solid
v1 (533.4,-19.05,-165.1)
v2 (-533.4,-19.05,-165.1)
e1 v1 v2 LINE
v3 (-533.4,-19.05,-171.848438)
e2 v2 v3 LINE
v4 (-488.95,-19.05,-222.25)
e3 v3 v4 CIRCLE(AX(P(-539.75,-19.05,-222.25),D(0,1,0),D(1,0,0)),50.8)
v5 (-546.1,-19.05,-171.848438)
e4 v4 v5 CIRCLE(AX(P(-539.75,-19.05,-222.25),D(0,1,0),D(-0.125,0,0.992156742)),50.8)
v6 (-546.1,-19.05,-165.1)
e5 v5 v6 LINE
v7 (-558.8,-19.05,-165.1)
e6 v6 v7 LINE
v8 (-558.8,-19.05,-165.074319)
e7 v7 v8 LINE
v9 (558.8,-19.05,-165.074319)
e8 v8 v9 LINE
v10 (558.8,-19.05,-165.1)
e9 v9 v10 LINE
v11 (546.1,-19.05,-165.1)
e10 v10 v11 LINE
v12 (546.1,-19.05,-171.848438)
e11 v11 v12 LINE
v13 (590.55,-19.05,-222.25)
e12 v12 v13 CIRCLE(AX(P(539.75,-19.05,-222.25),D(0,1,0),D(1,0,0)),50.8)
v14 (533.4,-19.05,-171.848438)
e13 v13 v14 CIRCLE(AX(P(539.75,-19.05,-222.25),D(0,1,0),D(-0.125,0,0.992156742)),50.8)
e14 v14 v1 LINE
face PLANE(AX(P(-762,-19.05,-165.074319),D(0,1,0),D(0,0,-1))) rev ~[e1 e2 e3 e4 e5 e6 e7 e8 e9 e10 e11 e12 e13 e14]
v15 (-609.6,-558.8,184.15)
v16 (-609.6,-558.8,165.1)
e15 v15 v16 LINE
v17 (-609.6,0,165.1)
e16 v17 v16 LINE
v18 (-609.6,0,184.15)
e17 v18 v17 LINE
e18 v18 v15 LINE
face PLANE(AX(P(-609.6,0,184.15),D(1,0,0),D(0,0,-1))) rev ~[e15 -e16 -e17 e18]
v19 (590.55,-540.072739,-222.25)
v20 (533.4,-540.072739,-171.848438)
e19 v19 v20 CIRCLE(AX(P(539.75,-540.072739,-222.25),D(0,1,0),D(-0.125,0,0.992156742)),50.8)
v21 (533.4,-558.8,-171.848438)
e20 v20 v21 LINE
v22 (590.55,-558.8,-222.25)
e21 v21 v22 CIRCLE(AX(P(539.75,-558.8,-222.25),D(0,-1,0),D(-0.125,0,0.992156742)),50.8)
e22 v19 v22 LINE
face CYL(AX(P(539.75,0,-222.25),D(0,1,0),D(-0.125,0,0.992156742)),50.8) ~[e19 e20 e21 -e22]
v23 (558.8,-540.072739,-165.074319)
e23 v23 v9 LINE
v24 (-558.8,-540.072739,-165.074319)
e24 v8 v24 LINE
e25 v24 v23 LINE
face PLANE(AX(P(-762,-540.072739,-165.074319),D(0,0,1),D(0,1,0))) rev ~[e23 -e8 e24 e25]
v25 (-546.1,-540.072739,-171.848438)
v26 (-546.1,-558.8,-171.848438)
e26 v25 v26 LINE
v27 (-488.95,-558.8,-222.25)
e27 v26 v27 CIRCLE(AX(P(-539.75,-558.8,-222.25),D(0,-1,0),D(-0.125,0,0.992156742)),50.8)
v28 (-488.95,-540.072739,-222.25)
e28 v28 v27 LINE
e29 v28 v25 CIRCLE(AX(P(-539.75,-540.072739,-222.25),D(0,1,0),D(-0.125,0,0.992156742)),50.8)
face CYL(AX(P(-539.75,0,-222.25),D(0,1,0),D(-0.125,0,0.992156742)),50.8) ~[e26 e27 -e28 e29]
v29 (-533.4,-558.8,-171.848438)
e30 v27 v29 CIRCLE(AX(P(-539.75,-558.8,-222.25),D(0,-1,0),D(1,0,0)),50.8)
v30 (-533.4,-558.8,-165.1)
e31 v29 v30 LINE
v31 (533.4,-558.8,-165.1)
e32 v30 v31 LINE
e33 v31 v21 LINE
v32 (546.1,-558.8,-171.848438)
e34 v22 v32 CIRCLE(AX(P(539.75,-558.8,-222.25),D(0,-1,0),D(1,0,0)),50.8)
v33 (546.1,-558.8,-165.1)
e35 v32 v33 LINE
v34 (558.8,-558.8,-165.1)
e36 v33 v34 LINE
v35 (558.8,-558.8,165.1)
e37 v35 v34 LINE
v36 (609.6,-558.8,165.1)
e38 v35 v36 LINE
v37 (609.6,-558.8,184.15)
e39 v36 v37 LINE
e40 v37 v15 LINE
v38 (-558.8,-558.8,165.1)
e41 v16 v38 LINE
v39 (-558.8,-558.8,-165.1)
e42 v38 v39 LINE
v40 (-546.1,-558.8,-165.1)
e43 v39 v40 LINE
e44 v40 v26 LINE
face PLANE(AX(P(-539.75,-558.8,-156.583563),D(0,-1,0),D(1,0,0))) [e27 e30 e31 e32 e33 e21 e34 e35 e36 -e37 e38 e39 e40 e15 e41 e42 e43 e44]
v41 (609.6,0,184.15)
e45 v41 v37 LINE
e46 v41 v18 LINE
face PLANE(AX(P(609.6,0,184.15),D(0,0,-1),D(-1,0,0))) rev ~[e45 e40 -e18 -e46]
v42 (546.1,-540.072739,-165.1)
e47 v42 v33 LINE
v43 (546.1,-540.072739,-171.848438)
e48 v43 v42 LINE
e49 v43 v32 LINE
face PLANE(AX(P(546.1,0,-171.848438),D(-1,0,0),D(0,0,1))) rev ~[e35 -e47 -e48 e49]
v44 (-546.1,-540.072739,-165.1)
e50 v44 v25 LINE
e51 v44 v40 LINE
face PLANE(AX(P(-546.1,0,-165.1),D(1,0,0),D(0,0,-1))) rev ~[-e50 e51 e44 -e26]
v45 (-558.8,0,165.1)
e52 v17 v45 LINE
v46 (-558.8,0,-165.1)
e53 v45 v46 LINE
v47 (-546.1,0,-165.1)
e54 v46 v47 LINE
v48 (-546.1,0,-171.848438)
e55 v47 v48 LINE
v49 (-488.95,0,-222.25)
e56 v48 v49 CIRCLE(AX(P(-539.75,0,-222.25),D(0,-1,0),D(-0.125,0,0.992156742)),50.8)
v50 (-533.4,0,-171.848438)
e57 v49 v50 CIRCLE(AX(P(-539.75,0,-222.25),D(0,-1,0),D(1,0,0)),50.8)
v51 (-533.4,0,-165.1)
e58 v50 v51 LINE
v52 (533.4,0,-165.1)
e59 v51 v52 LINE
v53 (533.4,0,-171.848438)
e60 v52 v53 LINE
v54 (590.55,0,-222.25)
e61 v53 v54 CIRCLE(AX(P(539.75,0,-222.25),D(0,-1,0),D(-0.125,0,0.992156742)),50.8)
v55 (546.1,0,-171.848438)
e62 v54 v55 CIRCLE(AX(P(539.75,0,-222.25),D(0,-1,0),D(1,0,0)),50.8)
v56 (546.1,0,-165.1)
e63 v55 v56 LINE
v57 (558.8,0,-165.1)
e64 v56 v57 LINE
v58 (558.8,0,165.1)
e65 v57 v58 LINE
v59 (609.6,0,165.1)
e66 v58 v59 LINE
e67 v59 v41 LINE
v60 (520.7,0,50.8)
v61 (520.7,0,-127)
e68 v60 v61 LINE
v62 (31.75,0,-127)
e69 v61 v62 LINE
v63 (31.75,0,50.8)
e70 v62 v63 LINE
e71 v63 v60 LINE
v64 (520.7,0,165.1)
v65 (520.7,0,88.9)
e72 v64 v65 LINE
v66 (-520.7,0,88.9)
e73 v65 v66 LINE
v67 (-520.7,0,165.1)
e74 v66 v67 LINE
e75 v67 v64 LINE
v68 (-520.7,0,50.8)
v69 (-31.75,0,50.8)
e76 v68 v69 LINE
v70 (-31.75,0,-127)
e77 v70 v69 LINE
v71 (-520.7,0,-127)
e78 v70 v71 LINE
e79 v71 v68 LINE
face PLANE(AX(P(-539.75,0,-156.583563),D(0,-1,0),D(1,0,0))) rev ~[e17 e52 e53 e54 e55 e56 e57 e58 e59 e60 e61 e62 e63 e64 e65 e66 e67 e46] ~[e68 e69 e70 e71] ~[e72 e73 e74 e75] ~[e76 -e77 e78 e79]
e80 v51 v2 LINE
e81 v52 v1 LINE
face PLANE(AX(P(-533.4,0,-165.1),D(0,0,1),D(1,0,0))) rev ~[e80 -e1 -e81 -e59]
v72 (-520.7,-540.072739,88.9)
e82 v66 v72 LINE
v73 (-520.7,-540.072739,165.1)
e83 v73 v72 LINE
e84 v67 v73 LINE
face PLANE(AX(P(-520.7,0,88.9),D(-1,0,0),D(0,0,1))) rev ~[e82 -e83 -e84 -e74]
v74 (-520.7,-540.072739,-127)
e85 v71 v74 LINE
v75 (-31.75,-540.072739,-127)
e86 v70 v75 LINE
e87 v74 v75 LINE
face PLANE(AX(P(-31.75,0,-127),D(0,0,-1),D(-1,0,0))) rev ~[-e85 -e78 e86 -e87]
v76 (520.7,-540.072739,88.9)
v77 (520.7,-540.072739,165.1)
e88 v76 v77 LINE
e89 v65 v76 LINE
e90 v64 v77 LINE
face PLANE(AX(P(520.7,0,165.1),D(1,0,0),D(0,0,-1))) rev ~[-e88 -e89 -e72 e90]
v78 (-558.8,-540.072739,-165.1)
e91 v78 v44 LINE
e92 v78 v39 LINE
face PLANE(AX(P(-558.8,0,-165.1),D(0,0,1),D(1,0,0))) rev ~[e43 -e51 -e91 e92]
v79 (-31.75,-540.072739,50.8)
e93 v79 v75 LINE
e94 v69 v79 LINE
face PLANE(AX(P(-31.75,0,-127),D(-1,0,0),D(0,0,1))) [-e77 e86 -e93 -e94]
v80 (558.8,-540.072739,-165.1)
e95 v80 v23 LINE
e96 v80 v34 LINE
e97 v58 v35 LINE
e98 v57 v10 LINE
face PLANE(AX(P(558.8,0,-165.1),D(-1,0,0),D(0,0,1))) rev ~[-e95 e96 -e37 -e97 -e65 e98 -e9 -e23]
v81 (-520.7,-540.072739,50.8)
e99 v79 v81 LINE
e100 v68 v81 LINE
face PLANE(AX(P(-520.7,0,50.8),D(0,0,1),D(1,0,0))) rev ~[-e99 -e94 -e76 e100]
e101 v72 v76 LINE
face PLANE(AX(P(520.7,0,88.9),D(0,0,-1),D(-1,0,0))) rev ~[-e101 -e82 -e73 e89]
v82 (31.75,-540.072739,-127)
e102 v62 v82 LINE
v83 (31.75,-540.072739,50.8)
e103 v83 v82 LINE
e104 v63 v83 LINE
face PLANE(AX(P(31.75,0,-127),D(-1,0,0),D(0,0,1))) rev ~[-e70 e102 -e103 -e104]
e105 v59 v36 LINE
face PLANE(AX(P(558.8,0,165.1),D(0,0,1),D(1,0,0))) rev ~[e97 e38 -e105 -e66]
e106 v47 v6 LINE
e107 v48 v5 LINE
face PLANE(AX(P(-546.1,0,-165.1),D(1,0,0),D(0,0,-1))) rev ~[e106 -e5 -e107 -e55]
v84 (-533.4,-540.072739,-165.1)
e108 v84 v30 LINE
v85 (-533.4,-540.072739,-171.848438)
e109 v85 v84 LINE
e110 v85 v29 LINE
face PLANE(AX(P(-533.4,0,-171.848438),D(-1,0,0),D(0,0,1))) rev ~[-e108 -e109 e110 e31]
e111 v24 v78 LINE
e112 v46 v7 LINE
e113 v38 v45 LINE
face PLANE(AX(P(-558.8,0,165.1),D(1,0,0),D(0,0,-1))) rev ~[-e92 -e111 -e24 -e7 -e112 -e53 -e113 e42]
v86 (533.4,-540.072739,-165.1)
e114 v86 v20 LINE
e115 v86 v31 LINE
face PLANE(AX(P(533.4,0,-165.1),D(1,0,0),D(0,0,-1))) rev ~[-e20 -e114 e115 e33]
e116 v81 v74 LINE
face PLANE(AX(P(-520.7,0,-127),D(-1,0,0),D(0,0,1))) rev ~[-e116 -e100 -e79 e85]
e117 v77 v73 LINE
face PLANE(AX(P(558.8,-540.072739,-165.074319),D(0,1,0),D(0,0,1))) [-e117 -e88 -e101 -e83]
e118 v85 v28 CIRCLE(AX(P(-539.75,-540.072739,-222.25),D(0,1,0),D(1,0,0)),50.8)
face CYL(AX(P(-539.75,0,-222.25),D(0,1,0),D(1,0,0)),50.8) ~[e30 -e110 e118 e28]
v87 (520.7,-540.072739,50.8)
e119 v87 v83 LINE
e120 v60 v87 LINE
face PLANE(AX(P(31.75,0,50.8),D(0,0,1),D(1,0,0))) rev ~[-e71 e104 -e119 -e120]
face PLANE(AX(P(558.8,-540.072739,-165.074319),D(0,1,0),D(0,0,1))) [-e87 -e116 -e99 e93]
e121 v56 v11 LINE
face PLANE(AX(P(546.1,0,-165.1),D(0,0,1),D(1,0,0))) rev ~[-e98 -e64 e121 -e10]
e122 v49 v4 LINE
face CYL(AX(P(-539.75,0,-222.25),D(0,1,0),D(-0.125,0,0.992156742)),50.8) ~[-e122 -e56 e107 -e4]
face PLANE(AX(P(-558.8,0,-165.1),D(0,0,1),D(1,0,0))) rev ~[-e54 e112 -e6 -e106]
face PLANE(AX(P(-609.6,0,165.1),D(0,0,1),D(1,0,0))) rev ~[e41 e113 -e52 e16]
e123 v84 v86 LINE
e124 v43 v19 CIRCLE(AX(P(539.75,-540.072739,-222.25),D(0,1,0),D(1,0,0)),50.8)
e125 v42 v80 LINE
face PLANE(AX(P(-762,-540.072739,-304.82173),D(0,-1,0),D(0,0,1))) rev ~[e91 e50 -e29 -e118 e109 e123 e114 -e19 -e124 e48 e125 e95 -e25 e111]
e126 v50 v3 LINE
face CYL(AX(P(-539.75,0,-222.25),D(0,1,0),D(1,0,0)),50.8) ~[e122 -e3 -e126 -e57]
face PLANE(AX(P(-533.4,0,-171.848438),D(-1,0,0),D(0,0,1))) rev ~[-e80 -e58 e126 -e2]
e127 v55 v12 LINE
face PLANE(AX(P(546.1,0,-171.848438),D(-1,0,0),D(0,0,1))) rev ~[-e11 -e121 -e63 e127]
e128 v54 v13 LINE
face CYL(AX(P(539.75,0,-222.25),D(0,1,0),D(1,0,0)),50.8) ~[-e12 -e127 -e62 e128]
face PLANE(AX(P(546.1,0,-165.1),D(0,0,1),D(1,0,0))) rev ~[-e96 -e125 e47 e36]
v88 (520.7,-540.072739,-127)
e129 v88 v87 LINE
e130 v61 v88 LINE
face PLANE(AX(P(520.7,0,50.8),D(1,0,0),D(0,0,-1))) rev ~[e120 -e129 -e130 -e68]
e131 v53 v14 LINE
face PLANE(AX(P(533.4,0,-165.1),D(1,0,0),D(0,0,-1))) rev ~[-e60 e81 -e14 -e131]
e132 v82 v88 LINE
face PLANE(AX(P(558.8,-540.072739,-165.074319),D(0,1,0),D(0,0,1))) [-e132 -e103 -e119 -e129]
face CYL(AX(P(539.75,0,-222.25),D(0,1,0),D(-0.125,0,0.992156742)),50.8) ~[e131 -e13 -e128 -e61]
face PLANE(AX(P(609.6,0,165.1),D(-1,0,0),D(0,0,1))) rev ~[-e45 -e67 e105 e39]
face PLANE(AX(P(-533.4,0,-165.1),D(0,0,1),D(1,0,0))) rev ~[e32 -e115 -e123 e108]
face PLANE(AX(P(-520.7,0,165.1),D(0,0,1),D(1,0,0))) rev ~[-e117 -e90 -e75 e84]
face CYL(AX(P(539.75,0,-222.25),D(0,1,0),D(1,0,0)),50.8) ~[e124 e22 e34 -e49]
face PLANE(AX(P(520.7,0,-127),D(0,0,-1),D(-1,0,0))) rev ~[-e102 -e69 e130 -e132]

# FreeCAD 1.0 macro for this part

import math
import FreeCAD as App
import Part
import Sketcher
from FreeCAD import Vector
Q = App.Units.Quantity


def add_polygon(sketch, points):
    """Adds a closed chain of lines whose ends are joined by coincident constraints."""
    first, n = sketch.GeometryCount, len(points)
    for a, b in zip(points, points[1:] + points[:1]):
        sketch.addGeometry(Part.LineSegment(App.Vector(*a, 0), App.Vector(*b, 0)), False)
    for i in range(n):
        sketch.addConstraint(Sketcher.Constraint("Coincident", first + i, 2, first + (i + 1) % n, 1))

doc = App.newDocument("Part")
params = doc.addObject("Spreadsheet::Sheet", "Params")
for row, (alias, value) in enumerate([
    ("sketch1_radius", "2 in"),
    ("sketch1_width", "2 in"),
    ("sketch1_width2", "48 in"),
    ("sketch1_width3", "42 in"),
    ("sketch1_width4", "41 in"),
    ("pad1_length", "22 in"),
    ("pocket1_length", "55.6 in"),
    ("pad2_length", "44 in"),
], start=1):
    params.set(f"A{row}", alias)
    params.set(f"B{row}", "=" + value)
    params.setAlias(f"B{row}", alias)

body = doc.addObject("PartDesign::Body", "Body")

# Sketch on XZ plane
sketch1 = body.newObject("Sketcher::SketchObject", "Sketch")
sketch1.AttachmentSupport = (doc.getObject("XZ_Plane"), [""])
sketch1.MapMode = "FlatFace"
sketch1.addGeometry(Part.LineSegment(Vector(559, -165, 0), Vector(559, 165, 0)), False)  # 0
sketch1.addGeometry(Part.LineSegment(Vector(559, 165, 0), Vector(610, 165, 0)), False)  # 1
sketch1.addGeometry(Part.LineSegment(Vector(610, 165, 0), Vector(610, 184, 0)), False)  # 2
sketch1.addGeometry(Part.LineSegment(Vector(610, 184, 0), Vector(-610, 184, 0)), False)  # 3
sketch1.addGeometry(Part.LineSegment(Vector(-610, 184, 0), Vector(-610, 165, 0)), False)  # 4
sketch1.addGeometry(Part.LineSegment(Vector(-610, 165, 0), Vector(-559, 165, 0)), False)  # 5
sketch1.addGeometry(Part.LineSegment(Vector(-559, 165, 0), Vector(-559, -165, 0)), False)  # 6
sketch1.addGeometry(Part.LineSegment(Vector(-559, -165, 0), Vector(-546, -165, 0)), False)  # 7
sketch1.addGeometry(Part.LineSegment(Vector(-546, -165, 0), Vector(-546, -172, 0)), False)  # 8
sketch1.addGeometry(Part.ArcOfCircle(Part.Circle(Vector(-540, -222, 0), Vector(0, 0, 1), 51), math.radians(97), math.radians(360)), False)  # 9
sketch1.addGeometry(Part.ArcOfCircle(Part.Circle(Vector(-540, -222, 0), Vector(0, 0, 1), 51), math.radians(0), math.radians(83)), False)  # 10
sketch1.addGeometry(Part.LineSegment(Vector(-533, -172, 0), Vector(-533, -165, 0)), False)  # 11
sketch1.addGeometry(Part.LineSegment(Vector(-533, -165, 0), Vector(533, -165, 0)), False)  # 12
sketch1.addGeometry(Part.LineSegment(Vector(533, -165, 0), Vector(533, -172, 0)), False)  # 13
sketch1.addGeometry(Part.ArcOfCircle(Part.Circle(Vector(540, -222, 0), Vector(0, 0, 1), 51), math.radians(97), math.radians(360)), False)  # 14
sketch1.addGeometry(Part.ArcOfCircle(Part.Circle(Vector(540, -222, 0), Vector(0, 0, 1), 51), math.radians(0), math.radians(83)), False)  # 15
sketch1.addGeometry(Part.LineSegment(Vector(546, -172, 0), Vector(546, -165, 0)), False)  # 16
sketch1.addGeometry(Part.LineSegment(Vector(546, -165, 0), Vector(559, -165, 0)), False)  # 17
add_polygon(sketch1, [(-521, -127), (-521, 51), (-32, 51), (-32, -127)])  # lines 18-21
add_polygon(sketch1, [(-521, 89), (-521, 165), (521, 165), (521, 89)])  # lines 22-25
add_polygon(sketch1, [(32, 51), (521, 51), (521, -127), (32, -127)])  # lines 26-29
sketch1.addConstraint([
    Sketcher.Constraint("Coincident", 0, 2, 1, 1),
    Sketcher.Constraint("Coincident", 1, 2, 2, 1),
    Sketcher.Constraint("Coincident", 2, 2, 3, 1),
    Sketcher.Constraint("Coincident", 3, 2, 4, 1),
    Sketcher.Constraint("Coincident", 4, 2, 5, 1),
    Sketcher.Constraint("Coincident", 5, 2, 6, 1),
    Sketcher.Constraint("Coincident", 6, 2, 7, 1),
    Sketcher.Constraint("Coincident", 7, 2, 8, 1),
    Sketcher.Constraint("Coincident", 8, 2, 9, 1),
    Sketcher.Constraint("Tangent", 9, 2, 10, 1),
    Sketcher.Constraint("Coincident", 10, 2, 11, 1),
    Sketcher.Constraint("Coincident", 11, 2, 12, 1),
    Sketcher.Constraint("Coincident", 12, 2, 13, 1),
    Sketcher.Constraint("Coincident", 13, 2, 14, 1),
    Sketcher.Constraint("Tangent", 14, 2, 15, 1),
    Sketcher.Constraint("Coincident", 15, 2, 16, 1),
    Sketcher.Constraint("Coincident", 16, 2, 17, 1),
    Sketcher.Constraint("Coincident", 17, 2, 0, 1),
    Sketcher.Constraint("Vertical", 0),
    Sketcher.Constraint("Horizontal", 1),
    Sketcher.Constraint("Vertical", 2),
    Sketcher.Constraint("Horizontal", 3),
    Sketcher.Constraint("Vertical", 4),
    Sketcher.Constraint("Horizontal", 5),
    Sketcher.Constraint("Vertical", 6),
    Sketcher.Constraint("Horizontal", 7),
    Sketcher.Constraint("Vertical", 8),
    Sketcher.Constraint("Vertical", 11),
    Sketcher.Constraint("Horizontal", 12),
    Sketcher.Constraint("Vertical", 13),
    Sketcher.Constraint("Vertical", 16),
    Sketcher.Constraint("Horizontal", 17),
    Sketcher.Constraint("Vertical", 18),
    Sketcher.Constraint("Horizontal", 19),
    Sketcher.Constraint("Vertical", 20),
    Sketcher.Constraint("Horizontal", 21),
    Sketcher.Constraint("Vertical", 22),
    Sketcher.Constraint("Horizontal", 23),
    Sketcher.Constraint("Vertical", 24),
    Sketcher.Constraint("Horizontal", 25),
    Sketcher.Constraint("Horizontal", 26),
    Sketcher.Constraint("Vertical", 27),
    Sketcher.Constraint("Horizontal", 28),
    Sketcher.Constraint("Vertical", 29),
    Sketcher.Constraint("Equal", 9, 10),
    Sketcher.Constraint("Equal", 10, 14),
    Sketcher.Constraint("Equal", 14, 15),
    Sketcher.Constraint("Symmetric", 0, 2, 6, 2, -1, 1),
    Sketcher.Constraint("Symmetric", 9, 3, 14, 3, -2),
    Sketcher.Constraint("Symmetric", 1, 2, 4, 2, -2),
    Sketcher.Constraint("Symmetric", 7, 2, 16, 2, -2),
    Sketcher.Constraint("Symmetric", 18, 2, 26, 2, -2),
    Sketcher.Constraint("Symmetric", 20, 2, 28, 2, -2),
    Sketcher.Constraint("Horizontal", 15, 3, 9, 2),
    Sketcher.Constraint("Horizontal", 8, 2, 10, 2),
    Sketcher.Constraint("Horizontal", 7, 2, 11, 2),
    Sketcher.Constraint("Horizontal", 10, 2, 13, 2),
    Sketcher.Constraint("Horizontal", 9, 2, 14, 2),
    Sketcher.Constraint("Horizontal", 5, 2, 22, 2),
    Sketcher.Constraint("Vertical", 21, 2, 22, 2),
    Sketcher.Constraint("Vertical", 24, 2, 26, 2),
    Sketcher.Constraint("Radius", 9, Q("2 in")),
    Sketcher.Constraint("DistanceX", 1, 1, 1, 2, Q("2 in")),
    Sketcher.Constraint("DistanceX", 3, 2, 3, 1, Q("48 in")),
    Sketcher.Constraint("DistanceX", 12, 1, 12, 2, Q("42 in")),
    Sketcher.Constraint("DistanceX", 23, 1, 23, 2, Q("41 in")),
    Sketcher.Constraint("DistanceY", 0, 1, 0, 2, Q("13 in")),
    Sketcher.Constraint("DistanceY", 18, 1, 18, 2, Q("7 in")),
    Sketcher.Constraint("DistanceY", 22, 1, 22, 2, Q("3 in")),
    Sketcher.Constraint("DistanceX", 7, 1, 7, 2, Q("0.5 in")),
    Sketcher.Constraint("DistanceY", -1, 1, 18, 2, Q("2 in")),
    Sketcher.Constraint("DistanceY", 14, 3, 2, 2, Q("16 in")),
    Sketcher.Constraint("DistanceX", 9, 2, 19, 2, Q("18 in")),
    Sketcher.Constraint("DistanceY", 2, 1, 2, 2, Q("0.75 in")),
])
sketch1.setExpression("Constraints[73]", "Params.sketch1_radius")
sketch1.setExpression("Constraints[74]", "Params.sketch1_width")
sketch1.setExpression("Constraints[75]", "Params.sketch1_width2")
sketch1.setExpression("Constraints[76]", "Params.sketch1_width3")
sketch1.setExpression("Constraints[77]", "Params.sketch1_width4")
pad1 = body.newObject("PartDesign::Pad", "Pad")
pad1.Profile = sketch1
pad1.setExpression("Length", "Params.pad1_length")

# Sketch on YZ plane
sketch2 = body.newObject("Sketcher::SketchObject", "Sketch001")
sketch2.AttachmentSupport = (doc.getObject("YZ_Plane"), [""])
sketch2.MapMode = "FlatFace"
sketch2.AttachmentOffset = App.Placement(Vector(0, 0, -30 * 25.4), App.Rotation())
add_polygon(sketch2, [(-540, -165), (-19, -165), (-19, -305), (-540, -305)])  # lines 0-3
sketch2.addConstraint([
    Sketcher.Constraint("Horizontal", 0),
    Sketcher.Constraint("Vertical", 1),
    Sketcher.Constraint("Horizontal", 2),
    Sketcher.Constraint("Vertical", 3),
    Sketcher.Constraint("DistanceX", 0, 2, -1, 1, Q("0.75 in")),
    Sketcher.Constraint("DistanceX", 0, 1, 0, 2, 521.022739),
    Sketcher.Constraint("DistanceY", 1, 2, 1, 1, 139.747411),
    Sketcher.Constraint("DistanceY", 0, 2, -1, 1, 165.074319),
])
pocket1 = body.newObject("PartDesign::Pocket", "Pocket")
pocket1.Profile = sketch2
pocket1.setExpression("Length", "Params.pocket1_length")
pocket1.Reversed = True

# Sketch on YZ plane
sketch3 = body.newObject("Sketcher::SketchObject", "Sketch002")
sketch3.AttachmentSupport = (doc.getObject("YZ_Plane"), [""])
sketch3.MapMode = "FlatFace"
sketch3.AttachmentOffset = App.Placement(Vector(0, 0, 22 * 25.4), App.Rotation())
add_polygon(sketch3, [(-559, 165), (-559, -165), (-540, -165), (-540, 165)])  # lines 0-3
sketch3.addConstraint([
    Sketcher.Constraint("Vertical", 0),
    Sketcher.Constraint("Horizontal", 1),
    Sketcher.Constraint("Vertical", 2),
    Sketcher.Constraint("Horizontal", 3),
    Sketcher.Constraint("DistanceX", 0, 2, -1, 1, Q("22 in")),
    Sketcher.Constraint("DistanceY", -1, 1, 2, 2, Q("6.5 in")),
    Sketcher.Constraint("DistanceX", 1, 1, 1, 2, 18.727261),
    Sketcher.Constraint("DistanceY", 0, 2, 0, 1, 330.174319),
])
pad2 = body.newObject("PartDesign::Pad", "Pad001")
pad2.Profile = sketch3
pad2.setExpression("Length", "Params.pad2_length")
pad2.Reversed = True

doc.recompute()
